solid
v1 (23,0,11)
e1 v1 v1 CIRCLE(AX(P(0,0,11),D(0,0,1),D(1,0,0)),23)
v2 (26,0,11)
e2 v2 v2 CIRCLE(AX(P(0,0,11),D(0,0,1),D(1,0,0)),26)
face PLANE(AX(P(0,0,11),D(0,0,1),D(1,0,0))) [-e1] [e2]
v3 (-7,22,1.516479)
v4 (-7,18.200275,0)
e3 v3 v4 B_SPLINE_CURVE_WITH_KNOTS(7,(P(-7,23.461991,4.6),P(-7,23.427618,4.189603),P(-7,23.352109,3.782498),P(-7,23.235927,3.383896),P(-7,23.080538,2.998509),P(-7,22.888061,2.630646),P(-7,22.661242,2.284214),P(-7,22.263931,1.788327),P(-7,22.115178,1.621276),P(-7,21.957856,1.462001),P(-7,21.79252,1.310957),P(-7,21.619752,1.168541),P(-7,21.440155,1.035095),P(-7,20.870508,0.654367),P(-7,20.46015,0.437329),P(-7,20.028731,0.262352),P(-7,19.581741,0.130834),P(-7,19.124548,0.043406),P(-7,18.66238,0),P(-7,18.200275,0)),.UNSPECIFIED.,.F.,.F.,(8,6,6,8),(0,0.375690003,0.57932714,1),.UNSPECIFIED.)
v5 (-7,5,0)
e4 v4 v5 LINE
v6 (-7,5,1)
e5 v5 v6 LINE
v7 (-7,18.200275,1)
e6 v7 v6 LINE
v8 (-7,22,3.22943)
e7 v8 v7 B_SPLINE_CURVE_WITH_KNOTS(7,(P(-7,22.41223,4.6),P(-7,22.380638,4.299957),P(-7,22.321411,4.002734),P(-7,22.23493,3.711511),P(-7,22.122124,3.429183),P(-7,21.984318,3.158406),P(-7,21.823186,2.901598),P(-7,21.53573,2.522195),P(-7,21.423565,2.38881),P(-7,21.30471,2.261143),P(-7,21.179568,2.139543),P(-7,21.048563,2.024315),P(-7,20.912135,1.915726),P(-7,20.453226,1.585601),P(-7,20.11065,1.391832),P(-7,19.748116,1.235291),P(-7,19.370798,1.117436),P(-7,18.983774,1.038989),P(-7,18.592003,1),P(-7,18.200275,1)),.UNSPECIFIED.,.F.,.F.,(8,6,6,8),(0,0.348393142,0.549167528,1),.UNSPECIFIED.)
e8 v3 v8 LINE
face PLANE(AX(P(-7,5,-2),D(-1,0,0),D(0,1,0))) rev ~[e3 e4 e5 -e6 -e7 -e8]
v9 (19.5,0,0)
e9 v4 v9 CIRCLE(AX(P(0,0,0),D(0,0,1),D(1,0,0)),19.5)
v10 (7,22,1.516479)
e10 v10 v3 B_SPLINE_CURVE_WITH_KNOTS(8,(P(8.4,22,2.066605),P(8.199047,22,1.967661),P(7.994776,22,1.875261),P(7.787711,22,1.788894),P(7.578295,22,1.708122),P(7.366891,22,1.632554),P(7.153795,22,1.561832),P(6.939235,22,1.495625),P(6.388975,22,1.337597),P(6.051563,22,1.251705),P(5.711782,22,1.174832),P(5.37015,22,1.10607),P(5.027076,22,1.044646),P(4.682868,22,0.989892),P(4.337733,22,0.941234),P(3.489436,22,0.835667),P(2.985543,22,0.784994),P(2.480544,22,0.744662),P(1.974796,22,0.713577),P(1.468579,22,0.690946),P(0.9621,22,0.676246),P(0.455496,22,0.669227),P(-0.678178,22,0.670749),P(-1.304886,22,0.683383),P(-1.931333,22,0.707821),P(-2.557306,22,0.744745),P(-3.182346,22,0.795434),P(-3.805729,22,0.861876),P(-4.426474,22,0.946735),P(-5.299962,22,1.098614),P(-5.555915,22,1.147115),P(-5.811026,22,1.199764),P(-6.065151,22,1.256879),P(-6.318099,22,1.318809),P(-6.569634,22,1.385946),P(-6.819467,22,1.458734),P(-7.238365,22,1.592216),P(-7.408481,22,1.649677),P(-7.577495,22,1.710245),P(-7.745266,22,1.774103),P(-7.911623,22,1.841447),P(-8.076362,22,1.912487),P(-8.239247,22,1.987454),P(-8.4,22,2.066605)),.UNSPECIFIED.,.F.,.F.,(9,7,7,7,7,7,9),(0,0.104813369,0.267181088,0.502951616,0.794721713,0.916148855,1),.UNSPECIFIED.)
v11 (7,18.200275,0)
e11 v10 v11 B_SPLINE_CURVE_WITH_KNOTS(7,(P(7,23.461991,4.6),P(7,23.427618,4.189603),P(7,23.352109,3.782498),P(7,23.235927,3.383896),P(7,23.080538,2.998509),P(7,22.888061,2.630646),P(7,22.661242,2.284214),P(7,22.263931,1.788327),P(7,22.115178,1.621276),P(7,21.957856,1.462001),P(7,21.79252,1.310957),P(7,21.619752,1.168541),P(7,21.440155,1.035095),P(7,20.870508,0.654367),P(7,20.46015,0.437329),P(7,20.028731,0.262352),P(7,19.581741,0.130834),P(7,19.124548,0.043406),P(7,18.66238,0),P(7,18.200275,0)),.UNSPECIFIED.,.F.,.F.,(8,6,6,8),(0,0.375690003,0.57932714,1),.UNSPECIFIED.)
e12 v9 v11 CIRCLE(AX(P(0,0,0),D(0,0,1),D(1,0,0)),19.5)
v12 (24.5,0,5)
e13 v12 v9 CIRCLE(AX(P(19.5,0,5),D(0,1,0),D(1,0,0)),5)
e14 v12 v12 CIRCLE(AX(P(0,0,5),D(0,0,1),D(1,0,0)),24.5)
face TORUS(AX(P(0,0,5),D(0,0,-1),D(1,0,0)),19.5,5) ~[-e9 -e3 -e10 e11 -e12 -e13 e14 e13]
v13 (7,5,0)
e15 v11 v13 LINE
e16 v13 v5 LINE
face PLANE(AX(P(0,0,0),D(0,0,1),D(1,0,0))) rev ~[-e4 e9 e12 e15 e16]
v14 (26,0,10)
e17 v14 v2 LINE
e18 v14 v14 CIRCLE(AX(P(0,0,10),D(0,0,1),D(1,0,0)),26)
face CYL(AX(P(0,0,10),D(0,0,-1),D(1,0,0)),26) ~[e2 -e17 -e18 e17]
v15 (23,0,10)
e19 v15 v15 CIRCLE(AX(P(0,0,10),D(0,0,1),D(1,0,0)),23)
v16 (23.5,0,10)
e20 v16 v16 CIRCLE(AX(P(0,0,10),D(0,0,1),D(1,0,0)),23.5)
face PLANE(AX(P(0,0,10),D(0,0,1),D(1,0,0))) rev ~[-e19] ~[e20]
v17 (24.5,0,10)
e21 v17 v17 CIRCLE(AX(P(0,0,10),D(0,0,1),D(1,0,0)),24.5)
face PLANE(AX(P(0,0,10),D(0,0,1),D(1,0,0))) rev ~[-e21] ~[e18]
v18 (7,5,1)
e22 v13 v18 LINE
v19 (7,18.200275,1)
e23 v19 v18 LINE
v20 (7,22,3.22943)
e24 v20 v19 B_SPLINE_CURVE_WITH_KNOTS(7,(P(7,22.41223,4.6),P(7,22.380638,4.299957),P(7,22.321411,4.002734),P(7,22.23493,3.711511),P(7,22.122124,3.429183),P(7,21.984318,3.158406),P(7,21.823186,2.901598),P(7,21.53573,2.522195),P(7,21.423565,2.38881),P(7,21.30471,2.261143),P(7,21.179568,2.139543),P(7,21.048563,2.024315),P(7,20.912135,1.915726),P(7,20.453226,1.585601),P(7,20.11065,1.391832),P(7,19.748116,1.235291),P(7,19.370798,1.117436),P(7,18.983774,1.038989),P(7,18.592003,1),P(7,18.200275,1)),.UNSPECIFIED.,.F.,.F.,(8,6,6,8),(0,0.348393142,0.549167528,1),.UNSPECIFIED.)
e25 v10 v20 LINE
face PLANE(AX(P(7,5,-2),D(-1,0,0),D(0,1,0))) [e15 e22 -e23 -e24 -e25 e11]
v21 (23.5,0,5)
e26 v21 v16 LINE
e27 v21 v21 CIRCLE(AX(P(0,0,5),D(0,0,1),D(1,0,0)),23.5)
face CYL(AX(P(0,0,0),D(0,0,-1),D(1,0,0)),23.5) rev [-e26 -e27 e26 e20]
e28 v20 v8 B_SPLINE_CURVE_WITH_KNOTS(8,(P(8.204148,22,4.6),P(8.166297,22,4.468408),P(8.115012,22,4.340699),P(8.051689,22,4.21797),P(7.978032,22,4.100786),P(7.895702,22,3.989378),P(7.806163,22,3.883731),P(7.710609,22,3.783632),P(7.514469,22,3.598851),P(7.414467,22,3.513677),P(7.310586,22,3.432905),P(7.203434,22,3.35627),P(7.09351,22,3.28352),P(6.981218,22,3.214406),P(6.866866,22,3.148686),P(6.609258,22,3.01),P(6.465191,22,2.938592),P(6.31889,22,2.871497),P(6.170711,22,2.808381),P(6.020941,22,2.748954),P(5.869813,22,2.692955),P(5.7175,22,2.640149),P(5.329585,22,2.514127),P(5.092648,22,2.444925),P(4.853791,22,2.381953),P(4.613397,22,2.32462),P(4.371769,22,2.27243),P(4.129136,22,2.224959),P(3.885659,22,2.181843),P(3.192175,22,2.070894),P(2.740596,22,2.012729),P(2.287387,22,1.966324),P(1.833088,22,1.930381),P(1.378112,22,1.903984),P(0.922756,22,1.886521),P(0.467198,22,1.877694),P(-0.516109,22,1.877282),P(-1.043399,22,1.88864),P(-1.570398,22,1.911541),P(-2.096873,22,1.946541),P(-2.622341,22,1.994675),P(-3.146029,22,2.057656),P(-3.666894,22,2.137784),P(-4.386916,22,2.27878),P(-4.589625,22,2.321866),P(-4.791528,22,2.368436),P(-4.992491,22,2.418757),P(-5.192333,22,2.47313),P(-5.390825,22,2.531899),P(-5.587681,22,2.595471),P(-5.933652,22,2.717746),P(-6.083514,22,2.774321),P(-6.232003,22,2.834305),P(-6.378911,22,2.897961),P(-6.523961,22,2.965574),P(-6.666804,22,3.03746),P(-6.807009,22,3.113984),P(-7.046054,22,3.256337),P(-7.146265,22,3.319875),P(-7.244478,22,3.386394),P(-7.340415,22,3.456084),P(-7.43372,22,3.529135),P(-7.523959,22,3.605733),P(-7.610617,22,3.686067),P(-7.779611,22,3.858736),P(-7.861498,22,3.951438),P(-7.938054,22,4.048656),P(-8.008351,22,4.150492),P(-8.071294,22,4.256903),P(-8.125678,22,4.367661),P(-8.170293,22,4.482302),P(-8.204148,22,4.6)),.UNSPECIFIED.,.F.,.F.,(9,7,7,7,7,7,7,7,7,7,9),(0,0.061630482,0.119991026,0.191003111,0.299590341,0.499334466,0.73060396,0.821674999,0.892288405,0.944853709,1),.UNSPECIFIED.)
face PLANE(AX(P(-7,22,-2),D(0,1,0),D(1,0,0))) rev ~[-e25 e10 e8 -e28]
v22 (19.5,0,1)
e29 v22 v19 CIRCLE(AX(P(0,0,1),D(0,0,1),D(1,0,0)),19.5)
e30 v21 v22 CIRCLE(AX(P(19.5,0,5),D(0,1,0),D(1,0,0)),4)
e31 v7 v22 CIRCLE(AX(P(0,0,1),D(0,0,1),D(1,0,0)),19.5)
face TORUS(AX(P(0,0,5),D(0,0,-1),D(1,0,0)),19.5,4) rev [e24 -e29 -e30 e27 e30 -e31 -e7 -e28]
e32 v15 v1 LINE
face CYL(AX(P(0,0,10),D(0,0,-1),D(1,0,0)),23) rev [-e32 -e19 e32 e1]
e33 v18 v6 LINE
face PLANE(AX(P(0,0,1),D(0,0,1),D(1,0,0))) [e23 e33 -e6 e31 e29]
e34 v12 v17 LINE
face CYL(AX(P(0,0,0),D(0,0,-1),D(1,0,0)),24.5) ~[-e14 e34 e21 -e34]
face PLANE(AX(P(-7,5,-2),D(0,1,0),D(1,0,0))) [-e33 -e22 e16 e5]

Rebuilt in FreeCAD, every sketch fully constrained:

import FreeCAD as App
import Part
import Sketcher


def edges_at(feature, points):
    """Names of the edges that pass closest to the given points."""
    edges = feature.Shape.Edges
    near = lambda p: min(range(len(edges)), key=lambda i: edges[i].distToShape(Part.Vertex(*p))[0])
    return sorted({f"Edge{near(p) + 1}" for p in points})


def faces_at(feature, points):
    """Names of the faces that lie closest to the given points."""
    faces = feature.Shape.Faces
    near = lambda p: min(range(len(faces)), key=lambda i: faces[i].distToShape(Part.Vertex(*p))[0])
    return sorted({f"Face{near(p) + 1}" for p in points})


def add_polygon(sketch, points):
    """Adds a closed chain of lines whose ends are joined by coincident constraints."""
    first, n = sketch.GeometryCount, len(points)
    for a, b in zip(points, points[1:] + points[:1]):
        sketch.addGeometry(Part.LineSegment(App.Vector(*a, 0), App.Vector(*b, 0)), False)
    for i in range(n):
        sketch.addConstraint(Sketcher.Constraint("Coincident", first + i, 2, first + (i + 1) % n, 1))

doc = App.newDocument("Part")
params = doc.addObject("Spreadsheet::Sheet", "Params")
for row, (alias, value) in enumerate([
    ("sketch1_width", "14 mm"),
    ("sketch1_height", "17 mm"),
    ("pad1_length", "6 mm"),
    ("sketch2_diameter", "49 mm"),
    ("pad2_length", "10 mm"),
    ("fillet_radius", "5 mm"),
    ("thickness_wall", "1 mm"),
    ("sketch3_diameter", "52 mm"),
    ("sketch3_diameter2", "46 mm"),
    ("pad3_length", "1 mm"),
], start=1):
    params.set(f"A{row}", alias)
    params.set(f"B{row}", "=" + value)
    params.setAlias(f"B{row}", alias)

body = doc.addObject("PartDesign::Body", "Body")

# Sketch on XY plane
sketch1 = body.newObject("Sketcher::SketchObject", "Sketch")
sketch1.AttachmentSupport = (doc.getObject("XY_Plane"), [""])
sketch1.MapMode = "FlatFace"
sketch1.AttachmentOffset = App.Placement(App.Vector(0, 0, -2), App.Rotation())
add_polygon(sketch1, [(-7, 22), (-7, 5), (7, 5), (7, 22)])  # lines 0-3
sketch1.addConstraint([
    Sketcher.Constraint("Vertical", 0),
    Sketcher.Constraint("Horizontal", 1),
    Sketcher.Constraint("Vertical", 2),
    Sketcher.Constraint("Horizontal", 3),
    Sketcher.Constraint("DistanceX", 1, 1, 1, 2, 14.0),
    Sketcher.Constraint("DistanceY", 0, 2, 0, 1, 17.0),
    Sketcher.Constraint("DistanceX", 0, 2, -1, 1, 7.0),
    Sketcher.Constraint("DistanceY", -1, 1, 0, 2, 5.0),
])
sketch1.setExpression("Constraints[8]", "Params.sketch1_width")
sketch1.setExpression("Constraints[9]", "Params.sketch1_height")
pad1 = body.newObject("PartDesign::Pad", "Pad")
pad1.Profile = sketch1
pad1.setExpression("Length", "Params.pad1_length")
body2 = doc.addObject("PartDesign::Body", "Body001")

# Sketch on XY plane
sketch2 = body2.newObject("Sketcher::SketchObject", "Sketch001")
sketch2.AttachmentSupport = (doc.getObject("XY_Plane001"), [""])
sketch2.MapMode = "FlatFace"
sketch2.addGeometry(Part.Circle(App.Vector(0, 0, 0), App.Vector(0, 0, 1), 24), False)
sketch2.addConstraint([
    Sketcher.Constraint("Coincident", 0, 3, -1, 1),
    Sketcher.Constraint("Diameter", 0, 49.0),
])
sketch2.setExpression("Constraints[1]", "Params.sketch2_diameter")
pad2 = body2.newObject("PartDesign::Pad", "Pad001")
pad2.Profile = sketch2
pad2.setExpression("Length", "Params.pad2_length")
doc.recompute()

fillet = body2.newObject("PartDesign::Fillet", "Fillet")
fillet.Base = (pad2, edges_at(pad2, [(-24.5, 0, 0)]))
fillet.setExpression("Radius", "Params.fillet_radius")
doc.recompute()

thickness = body2.newObject("PartDesign::Thickness", "Thickness")
thickness.Base = (fillet, faces_at(fillet, [(0, 0, 10)]))
thickness.setExpression("Value", "Params.thickness_wall")
thickness.Reversed = True
thickness.Join = "Arc"

# Sketch on XY plane
sketch3 = body2.newObject("Sketcher::SketchObject", "Sketch002")
sketch3.AttachmentSupport = (doc.getObject("XY_Plane001"), [""])
sketch3.MapMode = "FlatFace"
sketch3.AttachmentOffset = App.Placement(App.Vector(0, 0, 10), App.Rotation())
sketch3.addGeometry([
    Part.Circle(App.Vector(0, 0, 0), App.Vector(0, 0, 1), 26),
    Part.Circle(App.Vector(0, 0, 0), App.Vector(0, 0, 1), 23),
], False)
sketch3.addConstraint([
    Sketcher.Constraint("Coincident", 0, 3, -1, 1),
    Sketcher.Constraint("Coincident", 1, 3, -1, 1),
    Sketcher.Constraint("Diameter", 0, 52.0),
    Sketcher.Constraint("Diameter", 1, 46.0),
])
sketch3.setExpression("Constraints[2]", "Params.sketch3_diameter")
sketch3.setExpression("Constraints[3]", "Params.sketch3_diameter2")
pad3 = body2.newObject("PartDesign::Pad", "Pad002")
pad3.Profile = sketch3
pad3.setExpression("Length", "Params.pad3_length")
doc.recompute()

boolean = body2.newObject("PartDesign::Boolean", "Boolean")
boolean.Type = "Cut"
boolean.addObjects([body])

doc.recompute()
